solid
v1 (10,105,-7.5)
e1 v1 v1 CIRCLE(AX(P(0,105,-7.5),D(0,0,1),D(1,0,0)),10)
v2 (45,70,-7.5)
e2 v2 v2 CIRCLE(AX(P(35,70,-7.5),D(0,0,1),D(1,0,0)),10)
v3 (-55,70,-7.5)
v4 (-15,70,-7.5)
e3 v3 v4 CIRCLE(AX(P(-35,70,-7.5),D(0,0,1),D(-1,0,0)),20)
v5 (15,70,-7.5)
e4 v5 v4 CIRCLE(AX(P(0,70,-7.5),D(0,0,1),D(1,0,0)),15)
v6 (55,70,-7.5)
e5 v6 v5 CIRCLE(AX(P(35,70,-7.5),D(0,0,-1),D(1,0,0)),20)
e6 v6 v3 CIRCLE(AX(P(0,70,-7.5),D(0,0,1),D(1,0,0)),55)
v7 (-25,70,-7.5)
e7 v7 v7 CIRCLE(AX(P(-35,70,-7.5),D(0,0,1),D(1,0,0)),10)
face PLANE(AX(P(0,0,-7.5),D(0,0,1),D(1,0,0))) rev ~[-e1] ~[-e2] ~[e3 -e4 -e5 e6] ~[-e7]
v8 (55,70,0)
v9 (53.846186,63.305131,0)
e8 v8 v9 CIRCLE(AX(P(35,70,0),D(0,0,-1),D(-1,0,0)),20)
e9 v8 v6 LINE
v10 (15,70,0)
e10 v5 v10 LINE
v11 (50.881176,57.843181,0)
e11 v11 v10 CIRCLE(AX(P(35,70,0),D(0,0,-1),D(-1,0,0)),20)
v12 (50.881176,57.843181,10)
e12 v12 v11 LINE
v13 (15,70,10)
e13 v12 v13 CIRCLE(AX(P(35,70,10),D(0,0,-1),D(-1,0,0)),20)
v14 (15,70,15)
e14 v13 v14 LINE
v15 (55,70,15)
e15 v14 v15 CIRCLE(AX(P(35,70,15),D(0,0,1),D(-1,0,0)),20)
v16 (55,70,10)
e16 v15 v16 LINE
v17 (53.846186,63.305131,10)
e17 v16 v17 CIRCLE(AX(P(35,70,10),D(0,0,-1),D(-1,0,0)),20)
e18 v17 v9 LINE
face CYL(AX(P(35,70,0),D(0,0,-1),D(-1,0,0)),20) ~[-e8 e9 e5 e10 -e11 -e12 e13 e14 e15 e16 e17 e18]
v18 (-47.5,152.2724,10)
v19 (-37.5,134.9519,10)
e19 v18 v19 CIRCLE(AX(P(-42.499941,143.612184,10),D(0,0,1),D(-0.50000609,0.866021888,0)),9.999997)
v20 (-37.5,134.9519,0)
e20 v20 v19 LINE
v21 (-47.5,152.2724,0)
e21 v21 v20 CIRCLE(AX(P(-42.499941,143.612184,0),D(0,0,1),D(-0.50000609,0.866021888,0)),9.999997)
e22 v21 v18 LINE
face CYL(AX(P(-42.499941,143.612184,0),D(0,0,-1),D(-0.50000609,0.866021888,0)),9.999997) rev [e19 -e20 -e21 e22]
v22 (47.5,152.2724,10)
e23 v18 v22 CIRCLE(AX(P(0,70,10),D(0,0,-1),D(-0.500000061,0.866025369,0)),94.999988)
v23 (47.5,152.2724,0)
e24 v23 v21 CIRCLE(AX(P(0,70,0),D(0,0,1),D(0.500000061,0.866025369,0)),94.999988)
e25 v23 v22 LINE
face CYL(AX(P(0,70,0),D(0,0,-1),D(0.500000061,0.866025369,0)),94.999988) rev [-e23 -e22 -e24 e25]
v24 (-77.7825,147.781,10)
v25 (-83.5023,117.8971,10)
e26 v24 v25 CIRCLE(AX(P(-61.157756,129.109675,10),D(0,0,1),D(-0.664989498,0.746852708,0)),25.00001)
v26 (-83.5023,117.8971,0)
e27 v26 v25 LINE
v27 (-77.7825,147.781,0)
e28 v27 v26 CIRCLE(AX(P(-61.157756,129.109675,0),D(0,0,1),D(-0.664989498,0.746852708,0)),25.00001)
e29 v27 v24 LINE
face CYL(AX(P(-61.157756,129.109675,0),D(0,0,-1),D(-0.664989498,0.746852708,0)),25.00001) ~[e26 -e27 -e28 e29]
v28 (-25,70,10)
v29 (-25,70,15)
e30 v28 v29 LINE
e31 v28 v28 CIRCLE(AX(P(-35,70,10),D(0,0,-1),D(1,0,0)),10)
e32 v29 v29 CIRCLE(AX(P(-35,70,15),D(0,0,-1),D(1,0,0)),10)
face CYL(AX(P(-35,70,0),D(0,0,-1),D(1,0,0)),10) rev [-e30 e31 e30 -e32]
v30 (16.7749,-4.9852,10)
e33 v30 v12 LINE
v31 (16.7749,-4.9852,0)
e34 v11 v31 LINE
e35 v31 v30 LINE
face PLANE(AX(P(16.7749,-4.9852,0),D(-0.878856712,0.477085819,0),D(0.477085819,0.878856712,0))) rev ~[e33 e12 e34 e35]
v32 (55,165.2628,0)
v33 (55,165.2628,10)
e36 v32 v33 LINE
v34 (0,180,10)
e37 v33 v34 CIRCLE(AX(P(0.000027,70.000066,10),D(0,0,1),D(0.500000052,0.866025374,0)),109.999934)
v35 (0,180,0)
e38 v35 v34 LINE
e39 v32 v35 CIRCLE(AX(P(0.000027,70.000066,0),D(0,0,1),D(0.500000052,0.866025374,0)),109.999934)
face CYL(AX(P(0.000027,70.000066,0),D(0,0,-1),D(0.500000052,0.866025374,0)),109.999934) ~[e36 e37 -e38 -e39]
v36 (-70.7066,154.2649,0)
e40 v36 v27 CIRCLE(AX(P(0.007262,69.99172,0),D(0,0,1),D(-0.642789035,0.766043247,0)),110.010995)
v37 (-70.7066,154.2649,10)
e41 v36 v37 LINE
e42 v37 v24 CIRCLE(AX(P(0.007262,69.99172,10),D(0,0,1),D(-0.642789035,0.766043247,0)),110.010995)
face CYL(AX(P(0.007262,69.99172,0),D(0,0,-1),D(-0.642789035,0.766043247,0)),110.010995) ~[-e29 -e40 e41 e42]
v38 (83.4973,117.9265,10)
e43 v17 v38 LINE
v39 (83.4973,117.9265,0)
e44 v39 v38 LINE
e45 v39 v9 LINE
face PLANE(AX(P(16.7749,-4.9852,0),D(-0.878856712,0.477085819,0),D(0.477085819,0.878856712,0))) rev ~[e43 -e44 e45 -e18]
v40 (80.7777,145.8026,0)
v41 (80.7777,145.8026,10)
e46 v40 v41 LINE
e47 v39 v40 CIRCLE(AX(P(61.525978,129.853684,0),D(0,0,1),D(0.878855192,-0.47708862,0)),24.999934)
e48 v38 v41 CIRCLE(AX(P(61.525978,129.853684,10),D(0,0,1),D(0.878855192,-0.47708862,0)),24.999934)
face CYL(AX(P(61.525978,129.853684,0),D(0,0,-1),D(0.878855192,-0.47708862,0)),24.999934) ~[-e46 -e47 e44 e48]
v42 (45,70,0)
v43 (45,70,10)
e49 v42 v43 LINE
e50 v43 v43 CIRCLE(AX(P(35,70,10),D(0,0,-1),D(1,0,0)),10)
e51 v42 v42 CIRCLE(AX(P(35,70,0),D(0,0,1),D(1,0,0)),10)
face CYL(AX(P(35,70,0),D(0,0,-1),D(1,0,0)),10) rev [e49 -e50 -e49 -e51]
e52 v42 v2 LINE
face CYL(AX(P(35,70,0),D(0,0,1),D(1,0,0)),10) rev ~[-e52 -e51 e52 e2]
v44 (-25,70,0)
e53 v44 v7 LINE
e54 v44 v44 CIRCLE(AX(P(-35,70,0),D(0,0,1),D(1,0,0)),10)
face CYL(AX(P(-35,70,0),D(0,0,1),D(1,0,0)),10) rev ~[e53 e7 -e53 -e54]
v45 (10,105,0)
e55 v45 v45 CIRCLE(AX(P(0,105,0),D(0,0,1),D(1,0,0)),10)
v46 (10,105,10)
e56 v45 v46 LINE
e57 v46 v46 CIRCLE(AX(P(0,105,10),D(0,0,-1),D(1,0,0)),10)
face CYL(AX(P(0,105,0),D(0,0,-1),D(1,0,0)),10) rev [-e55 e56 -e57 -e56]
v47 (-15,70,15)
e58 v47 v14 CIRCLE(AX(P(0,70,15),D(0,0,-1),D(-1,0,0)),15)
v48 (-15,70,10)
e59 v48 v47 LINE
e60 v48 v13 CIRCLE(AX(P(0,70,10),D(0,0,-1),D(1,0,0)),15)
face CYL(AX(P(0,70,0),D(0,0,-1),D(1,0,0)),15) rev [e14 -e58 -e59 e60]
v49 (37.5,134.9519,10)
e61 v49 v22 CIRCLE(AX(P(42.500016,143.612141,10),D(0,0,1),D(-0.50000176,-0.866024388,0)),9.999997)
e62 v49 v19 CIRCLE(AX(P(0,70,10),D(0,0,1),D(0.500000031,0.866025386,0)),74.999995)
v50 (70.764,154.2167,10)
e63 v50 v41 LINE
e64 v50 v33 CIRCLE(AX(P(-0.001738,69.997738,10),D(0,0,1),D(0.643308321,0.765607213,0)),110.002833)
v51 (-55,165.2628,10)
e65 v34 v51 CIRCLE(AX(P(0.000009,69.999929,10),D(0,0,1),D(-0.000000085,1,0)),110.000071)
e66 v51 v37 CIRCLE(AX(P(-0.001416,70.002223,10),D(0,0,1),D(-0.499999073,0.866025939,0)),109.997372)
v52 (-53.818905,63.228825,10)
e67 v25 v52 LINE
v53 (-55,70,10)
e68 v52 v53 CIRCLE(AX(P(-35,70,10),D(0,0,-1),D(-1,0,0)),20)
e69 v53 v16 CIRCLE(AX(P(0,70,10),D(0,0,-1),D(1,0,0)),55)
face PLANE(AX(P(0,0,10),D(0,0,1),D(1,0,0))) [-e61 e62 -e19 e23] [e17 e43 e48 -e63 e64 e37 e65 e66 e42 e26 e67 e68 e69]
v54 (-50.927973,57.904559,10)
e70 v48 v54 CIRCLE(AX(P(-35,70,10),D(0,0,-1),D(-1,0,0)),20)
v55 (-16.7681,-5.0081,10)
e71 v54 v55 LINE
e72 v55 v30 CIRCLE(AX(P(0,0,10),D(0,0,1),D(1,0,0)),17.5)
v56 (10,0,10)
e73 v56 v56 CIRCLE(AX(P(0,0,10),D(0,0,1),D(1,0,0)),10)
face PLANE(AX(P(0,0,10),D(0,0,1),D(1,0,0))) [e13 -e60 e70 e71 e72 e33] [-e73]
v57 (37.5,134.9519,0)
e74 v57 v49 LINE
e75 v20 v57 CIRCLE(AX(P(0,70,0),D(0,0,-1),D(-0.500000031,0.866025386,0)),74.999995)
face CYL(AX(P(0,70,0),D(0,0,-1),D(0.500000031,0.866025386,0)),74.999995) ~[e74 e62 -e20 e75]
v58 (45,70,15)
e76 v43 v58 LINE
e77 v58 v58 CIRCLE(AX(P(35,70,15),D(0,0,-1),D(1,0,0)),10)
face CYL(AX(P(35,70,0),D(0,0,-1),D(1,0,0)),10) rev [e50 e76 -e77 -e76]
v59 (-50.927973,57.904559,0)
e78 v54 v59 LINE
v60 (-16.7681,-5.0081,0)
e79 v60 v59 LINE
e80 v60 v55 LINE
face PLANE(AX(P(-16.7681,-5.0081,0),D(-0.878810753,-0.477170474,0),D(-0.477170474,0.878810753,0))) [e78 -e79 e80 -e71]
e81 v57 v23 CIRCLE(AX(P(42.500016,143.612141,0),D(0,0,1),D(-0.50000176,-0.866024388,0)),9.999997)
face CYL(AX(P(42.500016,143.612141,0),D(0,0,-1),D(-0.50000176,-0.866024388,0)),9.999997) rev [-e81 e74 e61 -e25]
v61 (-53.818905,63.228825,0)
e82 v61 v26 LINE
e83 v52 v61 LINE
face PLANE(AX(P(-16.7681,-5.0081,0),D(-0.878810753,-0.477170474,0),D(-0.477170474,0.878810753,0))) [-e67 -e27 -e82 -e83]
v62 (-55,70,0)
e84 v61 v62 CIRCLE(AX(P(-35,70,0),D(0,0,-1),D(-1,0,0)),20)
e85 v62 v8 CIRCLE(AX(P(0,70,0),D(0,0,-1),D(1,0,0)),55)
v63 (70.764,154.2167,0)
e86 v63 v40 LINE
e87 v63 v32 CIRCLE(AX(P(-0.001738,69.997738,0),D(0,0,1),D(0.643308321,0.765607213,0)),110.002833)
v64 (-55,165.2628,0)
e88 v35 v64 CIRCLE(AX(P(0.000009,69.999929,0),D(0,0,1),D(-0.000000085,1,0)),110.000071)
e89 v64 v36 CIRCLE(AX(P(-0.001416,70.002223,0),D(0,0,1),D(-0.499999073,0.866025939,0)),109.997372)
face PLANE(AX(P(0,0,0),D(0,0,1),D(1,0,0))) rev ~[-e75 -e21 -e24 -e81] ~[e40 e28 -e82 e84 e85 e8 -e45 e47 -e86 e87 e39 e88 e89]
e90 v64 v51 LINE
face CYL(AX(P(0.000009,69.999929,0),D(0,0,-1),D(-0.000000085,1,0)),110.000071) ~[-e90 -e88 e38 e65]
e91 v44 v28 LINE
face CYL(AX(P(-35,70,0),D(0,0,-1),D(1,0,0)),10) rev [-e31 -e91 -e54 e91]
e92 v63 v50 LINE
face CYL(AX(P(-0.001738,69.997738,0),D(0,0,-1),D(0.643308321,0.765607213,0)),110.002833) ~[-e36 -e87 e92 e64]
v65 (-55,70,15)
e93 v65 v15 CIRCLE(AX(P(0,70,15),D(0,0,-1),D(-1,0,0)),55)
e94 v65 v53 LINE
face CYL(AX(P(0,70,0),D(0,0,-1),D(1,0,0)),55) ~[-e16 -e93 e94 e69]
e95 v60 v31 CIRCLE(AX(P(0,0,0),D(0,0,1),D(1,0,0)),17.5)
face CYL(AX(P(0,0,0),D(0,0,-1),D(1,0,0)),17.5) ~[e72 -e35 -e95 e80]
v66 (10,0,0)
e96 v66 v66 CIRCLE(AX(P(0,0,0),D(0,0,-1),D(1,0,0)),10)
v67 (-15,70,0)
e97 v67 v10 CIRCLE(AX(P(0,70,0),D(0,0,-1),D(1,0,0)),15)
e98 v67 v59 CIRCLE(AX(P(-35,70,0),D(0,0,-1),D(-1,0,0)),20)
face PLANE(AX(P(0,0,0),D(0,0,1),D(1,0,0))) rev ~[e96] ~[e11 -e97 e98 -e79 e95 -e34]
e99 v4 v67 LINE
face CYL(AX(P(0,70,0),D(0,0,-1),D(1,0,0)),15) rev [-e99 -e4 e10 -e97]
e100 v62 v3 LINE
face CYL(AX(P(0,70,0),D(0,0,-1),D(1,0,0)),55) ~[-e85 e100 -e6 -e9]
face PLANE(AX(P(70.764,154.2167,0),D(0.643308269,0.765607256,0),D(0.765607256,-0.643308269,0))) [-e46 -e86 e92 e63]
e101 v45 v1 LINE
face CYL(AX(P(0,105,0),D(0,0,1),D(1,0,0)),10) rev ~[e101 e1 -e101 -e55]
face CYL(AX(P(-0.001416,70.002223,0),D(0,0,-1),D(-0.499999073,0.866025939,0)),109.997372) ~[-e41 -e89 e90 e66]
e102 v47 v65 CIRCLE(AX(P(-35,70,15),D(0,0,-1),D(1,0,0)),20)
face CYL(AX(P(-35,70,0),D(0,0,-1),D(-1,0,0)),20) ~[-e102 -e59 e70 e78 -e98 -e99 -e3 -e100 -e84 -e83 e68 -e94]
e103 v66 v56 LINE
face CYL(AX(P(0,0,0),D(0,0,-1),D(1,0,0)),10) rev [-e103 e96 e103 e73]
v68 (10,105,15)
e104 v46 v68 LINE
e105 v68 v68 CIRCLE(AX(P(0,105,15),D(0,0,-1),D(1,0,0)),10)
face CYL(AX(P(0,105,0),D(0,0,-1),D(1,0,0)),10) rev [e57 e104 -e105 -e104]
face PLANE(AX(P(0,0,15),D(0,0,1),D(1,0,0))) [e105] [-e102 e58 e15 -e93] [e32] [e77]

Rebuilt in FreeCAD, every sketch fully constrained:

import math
import FreeCAD as App
import Part
import Sketcher
Q = App.Units.Quantity

doc = App.newDocument("Part")
body = doc.addObject("PartDesign::Body", "Body")

sketch1 = body.newObject("Sketcher::SketchObject", "Sketch")
sketch1.AttachmentSupport = (doc.getObject("XY_Plane"), [""])
sketch1.MapMode = "FlatFace"
sketch1.addGeometry([
    Part.ArcOfCircle(Part.Circle(App.Vector(0, 0, 0), App.Vector(0, 0, 1), 17.5), math.radians(-163.370782), math.radians(-16.551007)),
    Part.LineSegment(App.Vector(16.7749, -4.9852, 0), App.Vector(83.4973, 117.9265, 0)),
    Part.ArcOfCircle(Part.Circle(App.Vector(61.5259, 129.8537, 0), App.Vector(0, 0, 1), 25.00001), math.radians(-28.495374), math.radians(39.639602)),
    Part.LineSegment(App.Vector(80.7777, 145.8026, 0), App.Vector(70.764, 154.2167, 0)),
    Part.ArcOfCircle(Part.Circle(App.Vector(-0.001738, 69.997738, 0), App.Vector(0, 0, 1), 110.002833), math.radians(49.961043), math.radians(59.999807)),
    Part.ArcOfCircle(Part.Circle(App.Vector(0, 70, 0), App.Vector(0, 0, 1), 109.999983), math.radians(60.000001), math.radians(90)),
    Part.ArcOfCircle(Part.Circle(App.Vector(0, 70, 0), App.Vector(0, 0, 1), 110.000005), math.radians(90), math.radians(119.999999)),
    Part.ArcOfCircle(Part.Circle(App.Vector(-0.001416, 70.002223, 0), App.Vector(0, 0, 1), 109.997372), math.radians(119.999939), math.radians(130.000161)),
    Part.ArcOfCircle(Part.Circle(App.Vector(0.007262, 69.99172, 0), App.Vector(0, 0, 1), 110.010995), math.radians(130.000107), math.radians(135.000177)),
    Part.ArcOfCircle(Part.Circle(App.Vector(-61.1578, 129.1097, 0), App.Vector(0, 0, 1), 24.999962), math.radians(131.681483), math.radians(206.647764)),
    Part.LineSegment(App.Vector(-83.5023, 117.8971, 0), App.Vector(-16.7681, -5.0081, 0)),
    Part.Circle(App.Vector(0, 0, 0), App.Vector(0, 0, 1), 10),
    Part.Circle(App.Vector(35, 70, 0), App.Vector(0, 0, 1), 10),
    Part.Circle(App.Vector(0, 105, 0), App.Vector(0, 0, 1), 10),
    Part.Circle(App.Vector(-35, 70, 0), App.Vector(0, 0, 1), 10),
    Part.ArcOfCircle(Part.Circle(App.Vector(42.5, 143.6122, 0), App.Vector(0, 0, 1), 10.00004), math.radians(-119.999868), math.radians(59.999845)),
    Part.ArcOfCircle(Part.Circle(App.Vector(0, 70, 0), App.Vector(0, 0, 1), 74.999995), math.radians(59.999998), math.radians(120.000002)),
    Part.ArcOfCircle(Part.Circle(App.Vector(-42.5, 143.6122, 0), App.Vector(0, 0, 1), 9.999953), math.radians(120.000155), math.radians(299.999868)),
    Part.ArcOfCircle(Part.Circle(App.Vector(0, 70, 0), App.Vector(0, 0, 1), 94.999988), math.radians(59.999996), math.radians(120.000004)),
], False)
sketch1.addConstraint([
    Sketcher.Constraint("Coincident", 0, 2, 1, 1),
    Sketcher.Constraint("Coincident", 1, 2, 2, 1),
    Sketcher.Constraint("Coincident", 2, 2, 3, 1),
    Sketcher.Constraint("Coincident", 3, 2, 4, 1),
    Sketcher.Constraint("Coincident", 4, 2, 5, 1),
    Sketcher.Constraint("Coincident", 5, 2, 6, 1),
    Sketcher.Constraint("Coincident", 6, 2, 7, 1),
    Sketcher.Constraint("Coincident", 7, 2, 8, 1),
    Sketcher.Constraint("Coincident", 8, 2, 9, 1),
    Sketcher.Constraint("Coincident", 9, 2, 10, 1),
    Sketcher.Constraint("Coincident", 10, 2, 0, 1),
    Sketcher.Constraint("Coincident", 15, 1, 16, 1),
    Sketcher.Constraint("Coincident", 16, 2, 17, 2),
    Sketcher.Constraint("Coincident", 17, 1, 18, 2),
    Sketcher.Constraint("Coincident", 18, 1, 15, 2),
    Sketcher.Constraint("Coincident", 0, 3, -1, 1),
    Sketcher.Constraint("Coincident", 11, 3, -1, 1),
    Sketcher.Constraint("Coincident", 6, 3, 5, 3),
    Sketcher.Constraint("Coincident", 16, 3, 5, 3),
    Sketcher.Constraint("Coincident", 18, 3, 5, 3),
    Sketcher.Constraint("PointOnObject", 5, 3, -2),
    Sketcher.Constraint("PointOnObject", 13, 3, -2),
    Sketcher.Constraint("PointOnObject", 5, 2, -2),
    Sketcher.Constraint("Diameter", 11, Q("20 mm")),
    Sketcher.Constraint("Diameter", 12, Q("20 mm")),
    Sketcher.Constraint("Diameter", 13, Q("20 mm")),
    Sketcher.Constraint("Diameter", 14, Q("20 mm")),
    Sketcher.Constraint("Radius", 2, Q("25 mm")),
    Sketcher.Constraint("Radius", 5, Q("110 mm")),
    Sketcher.Constraint("Radius", 9, Q("25 mm")),
    Sketcher.Constraint("Radius", 15, Q("10 mm")),
    Sketcher.Constraint("Radius", 0, Q("17.5 mm")),
    Sketcher.Constraint("DistanceY", -1, 1, 5, 3, Q("70 mm")),
    Sketcher.Constraint("DistanceX", -1, 1, 12, 3, Q("35 mm")),
    Sketcher.Constraint("DistanceY", -1, 1, 12, 3, Q("70 mm")),
    Sketcher.Constraint("DistanceY", -1, 1, 13, 3, Q("105 mm")),
    Sketcher.Constraint("DistanceX", 14, 3, -1, 1, Q("35 mm")),
    Sketcher.Constraint("DistanceY", -1, 1, 14, 3, Q("70 mm")),
    Sketcher.Constraint("DistanceX", -1, 1, 4, 2, Q("55 mm")),
    Sketcher.Constraint("DistanceX", 6, 2, -1, 1, Q("55 mm")),
    Sketcher.Constraint("Radius", 16, Q("75 mm")),
    Sketcher.Constraint("DistanceX", 17, 3, 15, 3, Q("85 mm")),
    Sketcher.Constraint("DistanceX", 17, 1, 16, 2, Q("10 mm")),
    Sketcher.Constraint("DistanceX", 15, 1, 18, 1, Q("10 mm")),
    Sketcher.Constraint("Radius", 8, Q("110.011 mm")),
    Sketcher.Constraint("DistanceX", 15, 1, 15, 3, Q("5 mm")),
    Sketcher.Constraint("DistanceX", 17, 3, 16, 2, Q("5 mm")),
    Sketcher.Constraint("DistanceX", -1, 1, 15, 3, Q("42.5 mm")),
    Sketcher.Constraint("Radius", 4, Q("110.0028 mm")),
    Sketcher.Constraint("Radius", 7, Q("109.9974 mm")),
    Sketcher.Constraint("DistanceY", 7, 3, 15, 3, Q("73.61 mm")),
    Sketcher.Constraint("DistanceX", 8, 3, 1, 2, Q("83.49 mm")),
    Sketcher.Constraint("Distance", 1, Q("139.854 mm")),
    Sketcher.Constraint("Distance", 10, Q("139.854 mm")),
    Sketcher.Constraint("DistanceX", -1, 1, 2, 3, Q("61.526 mm")),
    Sketcher.Constraint("DistanceX", -1, 1, 0, 2, Q("16.775 mm")),
    Sketcher.Constraint("DistanceX", -1, 1, 3, 2, Q("70.764 mm")),
    Sketcher.Constraint("DistanceY", -1, 1, 7, 2, Q("154.265 mm")),
    Sketcher.Constraint("DistanceY", -1, 1, 8, 2, Q("147.781 mm")),
    Sketcher.Constraint("DistanceY", -1, 1, 9, 2, Q("117.897 mm")),
    Sketcher.Constraint("DistanceX", 10, 2, -1, 1, Q("16.768 mm")),
    Sketcher.Constraint("DistanceY", 4, 3, 2, 3, Q("59.856 mm")),
    Sketcher.Constraint("DistanceX", 4, 3, 8, 3, Q("0.009 mm")),
    Sketcher.Constraint("DistanceY", 2, 3, 2, 2, Q("15.949 mm")),
])
pad1 = body.newObject("PartDesign::Pad", "Pad")
pad1.Profile = sketch1
pad1.Length = 10

sketch2 = body.newObject("Sketcher::SketchObject", "Sketch001")
sketch2.AttachmentSupport = (doc.getObject("XY_Plane"), [""])
sketch2.MapMode = "FlatFace"
sketch2.addGeometry([
    Part.ArcOfCircle(Part.Circle(App.Vector(-35, 70, 0), App.Vector(0, 0, 1), 20), math.radians(180), math.radians(360)),
    Part.ArcOfCircle(Part.Circle(App.Vector(0, 70, 0), App.Vector(0, 0, 1), 15), math.radians(0), math.radians(180)),
    Part.ArcOfCircle(Part.Circle(App.Vector(35, 70, 0), App.Vector(0, 0, 1), 20), math.radians(180), math.radians(360)),
    Part.ArcOfCircle(Part.Circle(App.Vector(0, 70, 0), App.Vector(0, 0, 1), 55), math.radians(0), math.radians(180)),
    Part.Circle(App.Vector(0, 105, 0), App.Vector(0, 0, 1), 10),
    Part.Circle(App.Vector(-35, 70, 0), App.Vector(0, 0, 1), 10),
    Part.Circle(App.Vector(35, 70, 0), App.Vector(0, 0, 1), 10),
], False)
sketch2.addConstraint([
    Sketcher.Constraint("Tangent", 0, 2, 1, 2),
    Sketcher.Constraint("Tangent", 1, 1, 2, 1),
    Sketcher.Constraint("Tangent", 2, 2, 3, 1),
    Sketcher.Constraint("Tangent", 3, 2, 0, 1),
    Sketcher.Constraint("Coincident", 3, 3, 1, 3),
    Sketcher.Constraint("Coincident", 5, 3, 0, 3),
    Sketcher.Constraint("Coincident", 6, 3, 2, 3),
    Sketcher.Constraint("Equal", 4, 5),
    Sketcher.Constraint("Equal", 5, 6),
    Sketcher.Constraint("Symmetric", 0, 3, 2, 3, -2),
    Sketcher.Constraint("PointOnObject", 4, 3, -2),
    Sketcher.Constraint("Horizontal", 0, 3, 1, 3),
    Sketcher.Constraint("Diameter", 4, Q("20 mm")),
    Sketcher.Constraint("Radius", 0, Q("20 mm")),
    Sketcher.Constraint("Radius", 1, Q("15 mm")),
    Sketcher.Constraint("DistanceY", -1, 1, 0, 3, Q("70 mm")),
    Sketcher.Constraint("DistanceY", -1, 1, 4, 3, Q("105 mm")),
])
pad2 = body.newObject("PartDesign::Pad", "Pad001")
pad2.Profile = sketch2
pad2.Type = "TwoLengths"
pad2.Length = 15
pad2.Length2 = 7.5

doc.recompute()
